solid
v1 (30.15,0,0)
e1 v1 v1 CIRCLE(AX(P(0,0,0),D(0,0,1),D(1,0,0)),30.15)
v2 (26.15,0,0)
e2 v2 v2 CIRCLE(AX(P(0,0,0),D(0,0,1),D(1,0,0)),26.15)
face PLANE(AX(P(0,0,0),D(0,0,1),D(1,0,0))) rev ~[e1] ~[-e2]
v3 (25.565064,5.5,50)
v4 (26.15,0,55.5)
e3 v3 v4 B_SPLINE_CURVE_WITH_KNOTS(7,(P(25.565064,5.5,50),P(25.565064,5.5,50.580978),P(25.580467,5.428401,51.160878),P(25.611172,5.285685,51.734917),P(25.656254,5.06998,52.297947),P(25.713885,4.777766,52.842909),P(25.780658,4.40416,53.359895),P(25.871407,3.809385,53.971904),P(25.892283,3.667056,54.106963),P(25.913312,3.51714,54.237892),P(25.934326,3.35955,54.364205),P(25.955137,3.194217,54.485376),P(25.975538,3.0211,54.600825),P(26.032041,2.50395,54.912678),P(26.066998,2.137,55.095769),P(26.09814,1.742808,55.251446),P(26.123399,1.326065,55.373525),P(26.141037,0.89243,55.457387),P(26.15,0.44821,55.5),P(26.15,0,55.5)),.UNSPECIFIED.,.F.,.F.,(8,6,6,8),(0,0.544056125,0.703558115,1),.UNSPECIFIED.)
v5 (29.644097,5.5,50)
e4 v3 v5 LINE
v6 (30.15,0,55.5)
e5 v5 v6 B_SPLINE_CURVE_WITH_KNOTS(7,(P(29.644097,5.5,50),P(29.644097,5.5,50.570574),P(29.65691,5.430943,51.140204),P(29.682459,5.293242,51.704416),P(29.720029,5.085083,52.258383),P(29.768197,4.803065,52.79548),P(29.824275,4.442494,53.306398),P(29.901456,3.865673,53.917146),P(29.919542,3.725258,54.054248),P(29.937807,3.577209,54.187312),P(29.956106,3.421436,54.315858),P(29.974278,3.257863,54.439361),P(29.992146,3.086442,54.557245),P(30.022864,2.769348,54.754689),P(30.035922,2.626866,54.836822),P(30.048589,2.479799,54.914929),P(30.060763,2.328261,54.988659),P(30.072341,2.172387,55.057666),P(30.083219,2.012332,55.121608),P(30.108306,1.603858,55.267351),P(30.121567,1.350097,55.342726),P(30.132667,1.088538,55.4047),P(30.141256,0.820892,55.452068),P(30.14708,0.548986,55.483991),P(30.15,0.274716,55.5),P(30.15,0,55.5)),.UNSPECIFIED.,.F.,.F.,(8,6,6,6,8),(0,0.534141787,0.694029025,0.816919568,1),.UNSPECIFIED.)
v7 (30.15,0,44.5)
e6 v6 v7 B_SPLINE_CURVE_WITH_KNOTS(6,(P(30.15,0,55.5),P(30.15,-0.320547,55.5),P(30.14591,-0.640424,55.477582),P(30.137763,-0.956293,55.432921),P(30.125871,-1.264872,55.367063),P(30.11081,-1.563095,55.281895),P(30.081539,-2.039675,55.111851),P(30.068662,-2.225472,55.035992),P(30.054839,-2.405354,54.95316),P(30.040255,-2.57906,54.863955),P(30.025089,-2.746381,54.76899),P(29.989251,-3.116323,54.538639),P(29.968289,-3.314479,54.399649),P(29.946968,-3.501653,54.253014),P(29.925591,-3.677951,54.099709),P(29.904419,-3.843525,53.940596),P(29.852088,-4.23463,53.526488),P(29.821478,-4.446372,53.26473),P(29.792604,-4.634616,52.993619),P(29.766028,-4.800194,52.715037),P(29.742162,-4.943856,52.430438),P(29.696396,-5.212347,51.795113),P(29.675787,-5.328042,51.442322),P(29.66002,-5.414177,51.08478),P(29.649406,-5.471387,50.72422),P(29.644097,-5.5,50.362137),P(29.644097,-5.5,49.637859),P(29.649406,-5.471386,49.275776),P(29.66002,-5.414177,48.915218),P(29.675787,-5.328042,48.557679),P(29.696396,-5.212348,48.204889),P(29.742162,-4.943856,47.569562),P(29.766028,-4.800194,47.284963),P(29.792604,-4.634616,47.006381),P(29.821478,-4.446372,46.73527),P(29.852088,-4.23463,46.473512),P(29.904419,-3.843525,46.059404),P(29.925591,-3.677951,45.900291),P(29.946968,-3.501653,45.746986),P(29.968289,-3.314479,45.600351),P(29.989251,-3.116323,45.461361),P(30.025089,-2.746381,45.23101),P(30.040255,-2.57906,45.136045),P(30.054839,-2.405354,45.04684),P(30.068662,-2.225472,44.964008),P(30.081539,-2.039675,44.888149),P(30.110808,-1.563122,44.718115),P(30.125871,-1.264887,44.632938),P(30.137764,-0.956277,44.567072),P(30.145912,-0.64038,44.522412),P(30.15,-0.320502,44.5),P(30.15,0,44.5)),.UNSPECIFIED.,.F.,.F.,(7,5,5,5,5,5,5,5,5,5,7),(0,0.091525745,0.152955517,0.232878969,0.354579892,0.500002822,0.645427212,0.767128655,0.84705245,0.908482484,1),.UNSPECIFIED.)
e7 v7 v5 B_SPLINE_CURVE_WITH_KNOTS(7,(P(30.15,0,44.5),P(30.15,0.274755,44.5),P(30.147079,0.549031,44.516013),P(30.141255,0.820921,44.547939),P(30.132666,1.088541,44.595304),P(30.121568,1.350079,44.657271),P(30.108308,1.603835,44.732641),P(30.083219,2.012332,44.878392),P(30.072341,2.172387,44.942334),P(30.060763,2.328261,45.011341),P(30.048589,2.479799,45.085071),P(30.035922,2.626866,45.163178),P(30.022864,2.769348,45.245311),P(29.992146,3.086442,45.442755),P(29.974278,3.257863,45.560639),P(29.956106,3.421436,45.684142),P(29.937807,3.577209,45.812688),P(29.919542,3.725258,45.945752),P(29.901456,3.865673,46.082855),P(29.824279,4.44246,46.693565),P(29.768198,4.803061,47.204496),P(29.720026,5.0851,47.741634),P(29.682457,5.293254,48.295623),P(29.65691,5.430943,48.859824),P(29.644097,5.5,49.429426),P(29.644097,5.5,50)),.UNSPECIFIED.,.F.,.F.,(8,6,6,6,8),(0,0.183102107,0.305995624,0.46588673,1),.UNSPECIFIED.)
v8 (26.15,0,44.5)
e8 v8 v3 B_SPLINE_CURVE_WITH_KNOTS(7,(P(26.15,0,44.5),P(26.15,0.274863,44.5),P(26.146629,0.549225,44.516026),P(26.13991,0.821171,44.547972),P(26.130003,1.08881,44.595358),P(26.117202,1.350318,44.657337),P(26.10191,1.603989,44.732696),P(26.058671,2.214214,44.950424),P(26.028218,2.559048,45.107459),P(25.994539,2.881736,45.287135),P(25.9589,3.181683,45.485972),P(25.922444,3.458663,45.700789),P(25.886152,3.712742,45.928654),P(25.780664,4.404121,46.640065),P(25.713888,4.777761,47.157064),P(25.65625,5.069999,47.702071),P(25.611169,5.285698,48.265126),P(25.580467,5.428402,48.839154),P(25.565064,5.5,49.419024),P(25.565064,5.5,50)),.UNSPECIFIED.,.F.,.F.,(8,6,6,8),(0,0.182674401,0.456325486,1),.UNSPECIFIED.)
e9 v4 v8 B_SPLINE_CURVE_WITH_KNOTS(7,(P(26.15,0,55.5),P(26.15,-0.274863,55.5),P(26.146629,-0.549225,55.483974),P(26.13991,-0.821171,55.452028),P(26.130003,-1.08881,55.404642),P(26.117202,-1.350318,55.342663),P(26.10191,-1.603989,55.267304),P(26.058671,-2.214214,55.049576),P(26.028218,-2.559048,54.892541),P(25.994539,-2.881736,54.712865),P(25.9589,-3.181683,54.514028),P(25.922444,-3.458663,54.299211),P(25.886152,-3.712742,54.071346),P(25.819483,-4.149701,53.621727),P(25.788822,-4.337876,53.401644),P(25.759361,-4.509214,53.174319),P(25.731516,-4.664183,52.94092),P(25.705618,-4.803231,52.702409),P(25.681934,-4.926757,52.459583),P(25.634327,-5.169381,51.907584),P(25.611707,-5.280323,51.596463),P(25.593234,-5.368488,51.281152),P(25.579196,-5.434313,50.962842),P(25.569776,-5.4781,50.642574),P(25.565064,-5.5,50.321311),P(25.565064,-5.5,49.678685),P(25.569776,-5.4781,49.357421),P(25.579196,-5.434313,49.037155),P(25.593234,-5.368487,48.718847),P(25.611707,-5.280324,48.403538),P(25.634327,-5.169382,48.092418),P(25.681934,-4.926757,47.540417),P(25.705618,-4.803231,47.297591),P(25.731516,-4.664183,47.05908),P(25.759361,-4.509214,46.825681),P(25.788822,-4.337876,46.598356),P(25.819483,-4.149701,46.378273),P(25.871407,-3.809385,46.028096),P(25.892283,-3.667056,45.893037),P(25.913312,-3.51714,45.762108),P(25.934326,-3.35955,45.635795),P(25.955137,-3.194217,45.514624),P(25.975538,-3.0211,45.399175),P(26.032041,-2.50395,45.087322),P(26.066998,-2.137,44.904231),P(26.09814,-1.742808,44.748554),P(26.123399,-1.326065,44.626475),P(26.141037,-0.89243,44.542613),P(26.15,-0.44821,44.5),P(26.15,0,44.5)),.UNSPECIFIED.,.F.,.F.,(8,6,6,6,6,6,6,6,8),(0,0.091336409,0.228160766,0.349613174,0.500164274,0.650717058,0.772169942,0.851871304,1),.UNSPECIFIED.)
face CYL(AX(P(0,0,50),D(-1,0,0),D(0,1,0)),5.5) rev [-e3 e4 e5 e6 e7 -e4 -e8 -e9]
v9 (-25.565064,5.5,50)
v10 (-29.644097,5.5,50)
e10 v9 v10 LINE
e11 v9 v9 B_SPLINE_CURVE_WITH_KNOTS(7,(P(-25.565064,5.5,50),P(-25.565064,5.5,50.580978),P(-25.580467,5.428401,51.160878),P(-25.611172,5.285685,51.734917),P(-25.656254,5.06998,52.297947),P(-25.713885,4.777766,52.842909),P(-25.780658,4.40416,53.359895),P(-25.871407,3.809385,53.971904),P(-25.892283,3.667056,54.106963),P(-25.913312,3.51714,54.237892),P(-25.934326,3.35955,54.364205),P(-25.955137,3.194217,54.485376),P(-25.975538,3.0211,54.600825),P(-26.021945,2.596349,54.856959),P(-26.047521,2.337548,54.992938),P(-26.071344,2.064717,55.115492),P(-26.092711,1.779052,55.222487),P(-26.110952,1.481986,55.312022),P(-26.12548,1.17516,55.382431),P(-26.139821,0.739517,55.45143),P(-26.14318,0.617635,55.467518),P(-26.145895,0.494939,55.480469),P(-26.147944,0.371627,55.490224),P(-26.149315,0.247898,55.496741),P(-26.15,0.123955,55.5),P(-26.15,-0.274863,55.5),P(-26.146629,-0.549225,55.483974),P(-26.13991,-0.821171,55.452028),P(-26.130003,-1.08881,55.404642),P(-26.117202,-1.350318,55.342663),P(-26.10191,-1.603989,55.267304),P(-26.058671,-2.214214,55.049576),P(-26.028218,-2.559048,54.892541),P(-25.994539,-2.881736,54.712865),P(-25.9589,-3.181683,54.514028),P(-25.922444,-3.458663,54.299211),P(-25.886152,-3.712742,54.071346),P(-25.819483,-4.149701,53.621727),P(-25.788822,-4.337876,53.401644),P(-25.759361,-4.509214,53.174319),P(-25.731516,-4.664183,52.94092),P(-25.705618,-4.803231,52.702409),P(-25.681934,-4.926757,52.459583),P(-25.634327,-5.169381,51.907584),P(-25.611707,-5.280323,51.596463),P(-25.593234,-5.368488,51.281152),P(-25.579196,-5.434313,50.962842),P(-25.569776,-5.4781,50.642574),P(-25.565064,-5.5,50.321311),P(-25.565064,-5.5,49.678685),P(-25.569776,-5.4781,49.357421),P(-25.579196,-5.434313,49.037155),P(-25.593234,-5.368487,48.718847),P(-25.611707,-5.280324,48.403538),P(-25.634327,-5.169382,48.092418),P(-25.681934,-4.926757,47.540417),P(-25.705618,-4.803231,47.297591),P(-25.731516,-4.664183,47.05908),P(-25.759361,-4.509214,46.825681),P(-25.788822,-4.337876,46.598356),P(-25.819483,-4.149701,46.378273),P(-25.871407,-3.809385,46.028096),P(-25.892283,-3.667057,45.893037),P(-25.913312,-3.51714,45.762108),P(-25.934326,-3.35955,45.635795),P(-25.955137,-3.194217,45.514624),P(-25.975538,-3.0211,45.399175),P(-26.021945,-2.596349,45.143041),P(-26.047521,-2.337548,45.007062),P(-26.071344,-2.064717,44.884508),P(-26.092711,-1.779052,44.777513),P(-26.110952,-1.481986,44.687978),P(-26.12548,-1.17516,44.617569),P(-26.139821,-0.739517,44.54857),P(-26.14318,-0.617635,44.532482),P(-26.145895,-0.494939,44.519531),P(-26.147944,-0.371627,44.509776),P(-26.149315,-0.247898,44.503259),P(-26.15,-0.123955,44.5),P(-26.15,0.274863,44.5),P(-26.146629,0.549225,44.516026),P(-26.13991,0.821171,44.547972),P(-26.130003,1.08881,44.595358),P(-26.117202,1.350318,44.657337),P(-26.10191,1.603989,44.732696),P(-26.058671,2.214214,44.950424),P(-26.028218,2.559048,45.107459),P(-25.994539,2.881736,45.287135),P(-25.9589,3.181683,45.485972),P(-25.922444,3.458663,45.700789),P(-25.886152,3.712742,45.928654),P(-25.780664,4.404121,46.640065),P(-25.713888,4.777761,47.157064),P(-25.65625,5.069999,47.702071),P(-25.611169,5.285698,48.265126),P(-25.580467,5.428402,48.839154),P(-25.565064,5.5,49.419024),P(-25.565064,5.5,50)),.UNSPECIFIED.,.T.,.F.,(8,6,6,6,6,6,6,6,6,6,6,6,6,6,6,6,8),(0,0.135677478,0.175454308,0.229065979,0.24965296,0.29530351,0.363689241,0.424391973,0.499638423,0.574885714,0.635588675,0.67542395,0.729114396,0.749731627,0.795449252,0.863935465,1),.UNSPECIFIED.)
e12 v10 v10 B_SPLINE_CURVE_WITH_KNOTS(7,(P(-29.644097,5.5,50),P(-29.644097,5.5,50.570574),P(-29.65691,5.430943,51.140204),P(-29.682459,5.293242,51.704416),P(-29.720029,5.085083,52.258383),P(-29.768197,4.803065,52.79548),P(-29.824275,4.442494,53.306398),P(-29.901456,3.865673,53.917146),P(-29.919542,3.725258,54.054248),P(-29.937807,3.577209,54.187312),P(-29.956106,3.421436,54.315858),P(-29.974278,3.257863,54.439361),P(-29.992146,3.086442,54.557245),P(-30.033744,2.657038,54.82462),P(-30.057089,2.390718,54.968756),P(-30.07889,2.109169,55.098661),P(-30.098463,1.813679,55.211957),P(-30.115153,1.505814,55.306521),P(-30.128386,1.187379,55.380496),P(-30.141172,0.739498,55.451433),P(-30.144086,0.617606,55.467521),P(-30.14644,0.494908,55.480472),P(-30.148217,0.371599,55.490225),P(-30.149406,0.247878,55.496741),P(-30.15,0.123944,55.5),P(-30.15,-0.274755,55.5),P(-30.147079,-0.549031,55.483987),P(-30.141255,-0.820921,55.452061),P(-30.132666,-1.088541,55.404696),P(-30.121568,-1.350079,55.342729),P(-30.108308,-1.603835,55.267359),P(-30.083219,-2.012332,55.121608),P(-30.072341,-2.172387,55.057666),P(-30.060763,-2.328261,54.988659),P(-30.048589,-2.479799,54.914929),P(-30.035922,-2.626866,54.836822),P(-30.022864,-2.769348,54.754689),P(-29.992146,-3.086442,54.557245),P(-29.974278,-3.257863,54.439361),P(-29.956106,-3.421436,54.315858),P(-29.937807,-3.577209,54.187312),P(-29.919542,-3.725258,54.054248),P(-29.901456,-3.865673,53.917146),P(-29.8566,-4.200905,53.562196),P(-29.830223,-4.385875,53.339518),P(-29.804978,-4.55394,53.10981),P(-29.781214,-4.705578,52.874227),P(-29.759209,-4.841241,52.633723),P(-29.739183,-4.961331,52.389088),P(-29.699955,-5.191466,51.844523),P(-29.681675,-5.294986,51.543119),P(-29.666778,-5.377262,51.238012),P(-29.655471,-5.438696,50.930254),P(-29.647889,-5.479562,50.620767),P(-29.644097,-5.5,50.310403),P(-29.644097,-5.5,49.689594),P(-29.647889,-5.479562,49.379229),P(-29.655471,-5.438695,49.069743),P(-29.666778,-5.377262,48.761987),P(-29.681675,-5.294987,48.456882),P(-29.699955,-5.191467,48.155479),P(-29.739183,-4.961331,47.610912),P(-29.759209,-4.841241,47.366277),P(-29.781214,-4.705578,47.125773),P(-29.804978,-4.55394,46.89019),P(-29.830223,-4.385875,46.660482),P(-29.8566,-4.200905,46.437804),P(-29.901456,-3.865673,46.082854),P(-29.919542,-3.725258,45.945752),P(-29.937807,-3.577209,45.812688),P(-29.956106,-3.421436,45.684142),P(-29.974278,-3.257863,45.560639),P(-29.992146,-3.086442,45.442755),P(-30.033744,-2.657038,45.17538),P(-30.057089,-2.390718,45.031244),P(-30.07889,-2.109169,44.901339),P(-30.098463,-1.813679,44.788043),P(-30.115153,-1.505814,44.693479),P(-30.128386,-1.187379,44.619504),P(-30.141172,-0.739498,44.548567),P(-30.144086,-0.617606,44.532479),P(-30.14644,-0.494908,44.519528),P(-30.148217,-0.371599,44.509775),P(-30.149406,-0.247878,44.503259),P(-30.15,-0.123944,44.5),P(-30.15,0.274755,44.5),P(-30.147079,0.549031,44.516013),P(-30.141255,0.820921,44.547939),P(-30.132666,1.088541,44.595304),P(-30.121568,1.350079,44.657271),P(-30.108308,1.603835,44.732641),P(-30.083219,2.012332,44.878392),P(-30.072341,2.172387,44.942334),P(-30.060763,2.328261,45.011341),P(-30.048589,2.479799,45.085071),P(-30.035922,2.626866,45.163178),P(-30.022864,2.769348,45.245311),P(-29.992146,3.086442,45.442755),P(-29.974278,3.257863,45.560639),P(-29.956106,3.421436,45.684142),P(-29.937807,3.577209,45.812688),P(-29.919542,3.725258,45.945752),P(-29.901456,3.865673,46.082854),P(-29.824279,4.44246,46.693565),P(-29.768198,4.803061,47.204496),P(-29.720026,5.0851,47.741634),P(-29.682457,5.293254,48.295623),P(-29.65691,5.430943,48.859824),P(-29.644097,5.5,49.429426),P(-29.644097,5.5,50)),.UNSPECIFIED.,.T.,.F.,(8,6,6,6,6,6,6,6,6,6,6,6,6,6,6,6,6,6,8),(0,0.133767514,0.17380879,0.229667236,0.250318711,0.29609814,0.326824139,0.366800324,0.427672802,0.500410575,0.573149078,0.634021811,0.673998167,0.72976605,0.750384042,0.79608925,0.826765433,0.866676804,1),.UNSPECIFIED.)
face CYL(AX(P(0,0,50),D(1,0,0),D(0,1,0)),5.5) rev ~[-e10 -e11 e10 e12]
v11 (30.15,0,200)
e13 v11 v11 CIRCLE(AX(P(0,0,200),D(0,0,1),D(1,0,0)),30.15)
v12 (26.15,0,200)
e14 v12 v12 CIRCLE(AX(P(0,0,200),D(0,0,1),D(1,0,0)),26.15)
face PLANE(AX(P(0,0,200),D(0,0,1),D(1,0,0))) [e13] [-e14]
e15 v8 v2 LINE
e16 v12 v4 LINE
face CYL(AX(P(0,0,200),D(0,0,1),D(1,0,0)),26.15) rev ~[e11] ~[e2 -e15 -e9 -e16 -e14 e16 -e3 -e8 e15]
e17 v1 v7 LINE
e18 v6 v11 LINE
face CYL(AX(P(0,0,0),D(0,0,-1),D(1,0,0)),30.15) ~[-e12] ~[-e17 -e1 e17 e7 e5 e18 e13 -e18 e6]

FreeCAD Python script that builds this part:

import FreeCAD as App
import Part
import Sketcher
from FreeCAD import Vector
Q = App.Units.Quantity

doc = App.newDocument("Part")
body = doc.addObject("PartDesign::Body", "Body")

# Sketch on XY plane
sketch1 = body.newObject("Sketcher::SketchObject", "Sketch")
sketch1.AttachmentSupport = (doc.getObject("XY_Plane"), [""])
sketch1.MapMode = "FlatFace"
sketch1.addGeometry(Part.Circle(Vector(0, 0, 0), Vector(0, 0, 1), 30), False)
sketch1.addConstraint([
    Sketcher.Constraint("Coincident", 0, 3, -1, 1),
    Sketcher.Constraint("Diameter", 0, Q("60.3 mm")),
])
pad1 = body.newObject("PartDesign::Pad", "Pad")
pad1.Profile = sketch1
pad1.Length = 200

# Sketch on XY plane
sketch2 = body.newObject("Sketcher::SketchObject", "Sketch001")
sketch2.AttachmentSupport = (doc.getObject("XY_Plane"), [""])
sketch2.MapMode = "FlatFace"
sketch2.AttachmentOffset = App.Placement(Vector(0, 0, 200), App.Rotation())
sketch2.addGeometry(Part.Circle(Vector(0, 0, 0), Vector(0, 0, 1), 26), False)
sketch2.addConstraint([
    Sketcher.Constraint("Coincident", 0, 3, -1, 1),
    Sketcher.Constraint("Diameter", 0, Q("52.3 mm")),
])
pocket1 = body.newObject("PartDesign::Pocket", "Pocket")
pocket1.Profile = sketch2
pocket1.Length = 200

# Sketch on YZ plane
sketch3 = body.newObject("Sketcher::SketchObject", "Sketch002")
sketch3.AttachmentSupport = (doc.getObject("YZ_Plane"), [""])
sketch3.MapMode = "FlatFace"
sketch3.addGeometry(Part.Circle(Vector(0, 50, 0), Vector(0, 0, 1), 6), False)
sketch3.addConstraint([
    Sketcher.Constraint("PointOnObject", 0, 3, -2),
    Sketcher.Constraint("Diameter", 0, Q("11 mm")),
    Sketcher.Constraint("DistanceY", -1, 1, 0, 3, Q("50 mm")),
])
pocket2 = body.newObject("PartDesign::Pocket", "Pocket001")
pocket2.Profile = sketch3
pocket2.Type = "ThroughAll"
pocket2.Midplane = True

doc.recompute()
